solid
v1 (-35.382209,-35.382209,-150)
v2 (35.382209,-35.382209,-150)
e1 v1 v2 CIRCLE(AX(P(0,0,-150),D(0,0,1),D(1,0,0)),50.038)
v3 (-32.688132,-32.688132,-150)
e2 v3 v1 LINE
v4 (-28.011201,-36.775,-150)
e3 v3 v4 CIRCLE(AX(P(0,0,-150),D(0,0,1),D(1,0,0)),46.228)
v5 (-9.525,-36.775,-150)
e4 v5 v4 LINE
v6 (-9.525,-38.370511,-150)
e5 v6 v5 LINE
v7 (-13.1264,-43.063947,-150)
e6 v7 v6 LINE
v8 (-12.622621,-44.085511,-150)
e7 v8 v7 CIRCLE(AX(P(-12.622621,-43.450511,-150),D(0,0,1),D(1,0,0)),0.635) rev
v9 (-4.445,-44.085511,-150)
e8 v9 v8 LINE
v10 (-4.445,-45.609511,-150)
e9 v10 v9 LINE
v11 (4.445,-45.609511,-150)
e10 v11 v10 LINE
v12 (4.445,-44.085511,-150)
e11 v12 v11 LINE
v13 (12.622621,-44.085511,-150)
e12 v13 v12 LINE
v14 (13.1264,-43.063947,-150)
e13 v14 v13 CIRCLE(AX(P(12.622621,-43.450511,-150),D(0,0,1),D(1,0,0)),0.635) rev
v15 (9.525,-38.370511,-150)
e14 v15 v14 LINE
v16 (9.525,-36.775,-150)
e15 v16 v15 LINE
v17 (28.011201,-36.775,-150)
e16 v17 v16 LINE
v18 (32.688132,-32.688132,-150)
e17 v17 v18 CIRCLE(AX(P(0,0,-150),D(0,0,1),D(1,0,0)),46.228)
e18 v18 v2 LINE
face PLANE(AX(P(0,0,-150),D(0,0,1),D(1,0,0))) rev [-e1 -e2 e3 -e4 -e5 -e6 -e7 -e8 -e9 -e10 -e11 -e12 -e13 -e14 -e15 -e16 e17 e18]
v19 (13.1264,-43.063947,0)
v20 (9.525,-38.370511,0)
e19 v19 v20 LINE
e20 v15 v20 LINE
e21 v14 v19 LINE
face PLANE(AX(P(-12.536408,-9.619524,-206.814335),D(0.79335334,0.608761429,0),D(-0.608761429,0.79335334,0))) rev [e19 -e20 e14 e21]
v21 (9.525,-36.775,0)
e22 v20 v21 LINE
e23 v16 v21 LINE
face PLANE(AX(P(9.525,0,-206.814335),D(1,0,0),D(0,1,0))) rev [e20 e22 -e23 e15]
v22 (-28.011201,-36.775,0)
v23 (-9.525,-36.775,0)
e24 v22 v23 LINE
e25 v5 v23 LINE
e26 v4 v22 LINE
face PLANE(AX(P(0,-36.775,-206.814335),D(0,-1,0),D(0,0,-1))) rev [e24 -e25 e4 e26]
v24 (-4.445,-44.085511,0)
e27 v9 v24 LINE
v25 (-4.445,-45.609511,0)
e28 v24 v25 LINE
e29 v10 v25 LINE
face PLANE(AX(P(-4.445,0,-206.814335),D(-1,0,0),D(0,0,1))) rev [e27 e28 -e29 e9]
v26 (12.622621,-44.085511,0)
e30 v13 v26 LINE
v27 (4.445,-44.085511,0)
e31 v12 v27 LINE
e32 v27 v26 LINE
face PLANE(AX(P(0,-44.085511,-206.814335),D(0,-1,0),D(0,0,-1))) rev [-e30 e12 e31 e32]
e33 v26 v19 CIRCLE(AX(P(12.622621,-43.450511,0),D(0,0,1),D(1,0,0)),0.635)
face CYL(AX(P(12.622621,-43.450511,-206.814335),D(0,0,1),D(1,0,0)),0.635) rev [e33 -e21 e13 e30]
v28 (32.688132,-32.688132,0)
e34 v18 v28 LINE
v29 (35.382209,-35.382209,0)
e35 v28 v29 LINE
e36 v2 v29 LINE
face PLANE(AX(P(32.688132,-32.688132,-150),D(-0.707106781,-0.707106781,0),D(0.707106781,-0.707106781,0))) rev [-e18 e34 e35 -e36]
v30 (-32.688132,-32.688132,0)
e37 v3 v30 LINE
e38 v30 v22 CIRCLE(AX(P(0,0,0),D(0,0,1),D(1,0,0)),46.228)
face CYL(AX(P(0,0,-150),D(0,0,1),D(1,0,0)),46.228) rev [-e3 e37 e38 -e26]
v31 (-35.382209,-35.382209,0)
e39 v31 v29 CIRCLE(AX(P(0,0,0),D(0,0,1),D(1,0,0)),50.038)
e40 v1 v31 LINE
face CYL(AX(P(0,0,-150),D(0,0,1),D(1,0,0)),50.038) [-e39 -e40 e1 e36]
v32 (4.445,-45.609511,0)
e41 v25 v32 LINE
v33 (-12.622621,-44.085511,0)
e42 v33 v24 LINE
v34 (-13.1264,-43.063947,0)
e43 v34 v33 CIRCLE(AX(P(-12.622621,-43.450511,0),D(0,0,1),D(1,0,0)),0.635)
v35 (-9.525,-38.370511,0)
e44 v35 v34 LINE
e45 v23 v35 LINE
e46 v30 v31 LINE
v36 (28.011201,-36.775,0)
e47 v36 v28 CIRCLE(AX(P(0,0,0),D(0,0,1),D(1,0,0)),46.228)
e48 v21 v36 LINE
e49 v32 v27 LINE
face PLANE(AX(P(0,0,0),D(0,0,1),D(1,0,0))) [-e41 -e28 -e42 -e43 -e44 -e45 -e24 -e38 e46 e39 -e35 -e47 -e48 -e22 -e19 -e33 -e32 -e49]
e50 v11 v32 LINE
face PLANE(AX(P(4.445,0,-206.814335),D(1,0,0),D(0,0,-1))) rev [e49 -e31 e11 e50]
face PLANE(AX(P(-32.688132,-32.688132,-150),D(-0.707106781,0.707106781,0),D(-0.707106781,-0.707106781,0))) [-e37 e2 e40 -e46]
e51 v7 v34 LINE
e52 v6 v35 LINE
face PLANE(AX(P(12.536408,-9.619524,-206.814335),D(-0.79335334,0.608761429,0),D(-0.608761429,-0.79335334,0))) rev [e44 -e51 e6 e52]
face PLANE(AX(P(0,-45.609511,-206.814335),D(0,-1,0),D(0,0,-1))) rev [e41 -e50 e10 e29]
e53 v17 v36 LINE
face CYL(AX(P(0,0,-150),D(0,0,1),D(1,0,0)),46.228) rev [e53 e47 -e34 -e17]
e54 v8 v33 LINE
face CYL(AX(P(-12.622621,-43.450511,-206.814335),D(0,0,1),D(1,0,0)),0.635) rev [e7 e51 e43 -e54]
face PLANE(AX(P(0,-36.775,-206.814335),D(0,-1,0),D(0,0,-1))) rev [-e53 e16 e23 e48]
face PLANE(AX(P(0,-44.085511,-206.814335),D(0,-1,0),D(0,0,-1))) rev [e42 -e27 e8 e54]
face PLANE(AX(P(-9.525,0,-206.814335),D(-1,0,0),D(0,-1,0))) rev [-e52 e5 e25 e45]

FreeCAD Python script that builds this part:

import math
import FreeCAD as App
import Part
import Sketcher

V = App.Vector
Q = App.Units.Quantity

doc = App.newDocument("Part")
params = doc.addObject("Spreadsheet::Sheet", "Params")
for row, (alias, value) in enumerate([
    ("sketch1_radius", "1.82 in"),
    ("sketch1_radius2", "1.97 in"),
    ("pad1_length", "150 mm"),
    ("sketch2_radius", "1.82 in"),
    ("sketch2_radius2", "0.025 in"),
    ("sketch2_width", "0.35 in"),
    ("sketch2_height", "0.06 in"),
    ("pad2_length", "150 mm"),
], start=1):
    params.set(f"A{row}", alias)
    params.set(f"B{row}", "=" + value)
    params.setAlias(f"B{row}", alias)

body = doc.addObject("PartDesign::Body", "Body")

# Sketch on XY plane
sketch1 = doc.addObject("Sketcher::SketchObject", "Sketch")
body.addObject(sketch1)
sketch1.AttachmentSupport = (doc.XY_Plane, [""])
sketch1.MapMode = "FlatFace"
sketch1.addGeometry([
    Part.LineSegment(V(35.382209, -35.382209, 0), V(32.688132, -32.688132, 0)),
    Part.ArcOfCircle(Part.Circle(V(0, 0, 0), V(0, 0, 1), 46.228), math.radians(-135), math.radians(-45)),
    Part.LineSegment(V(-32.688132, -32.688132, 0), V(-35.382209, -35.382209, 0)),
    Part.ArcOfCircle(Part.Circle(V(0, 0, 0), V(0, 0, 1), 50.038), math.radians(-135), math.radians(-45)),
], False)
sketch1.addConstraint([
    Sketcher.Constraint("Coincident", 0, 2, 1, 2),
    Sketcher.Constraint("Coincident", 1, 1, 2, 1),
    Sketcher.Constraint("Coincident", 2, 2, 3, 1),
    Sketcher.Constraint("Coincident", 3, 2, 0, 1),
    Sketcher.Constraint("Coincident", 1, 3, -1, 1),
    Sketcher.Constraint("Coincident", 3, 3, -1, 1),
    Sketcher.Constraint("Perpendicular", 0, 2),
    Sketcher.Constraint("Horizontal", 0, 2, 1, 1),
    Sketcher.Constraint("Horizontal", 2, 2, 3, 2),
    Sketcher.Constraint("Radius", 1, Q("1.82 in")),
    Sketcher.Constraint("Radius", 3, Q("1.97 in")),
    Sketcher.Constraint("DistanceX", 2, 2, -1, 1, 35.382209),
])
sketch1.setExpression("Constraints[9]", "Params.sketch1_radius")
sketch1.setExpression("Constraints[10]", "Params.sketch1_radius2")
pad1 = doc.addObject("PartDesign::Pad", "Pad")
body.addObject(pad1)
pad1.Profile = sketch1
pad1.setExpression("Length", "Params.pad1_length")
pad1.Reversed = True

# Sketch on XY plane
sketch2 = doc.addObject("Sketcher::SketchObject", "Sketch001")
body.addObject(sketch2)
sketch2.AttachmentSupport = (doc.XY_Plane, [""])
sketch2.MapMode = "FlatFace"
sketch2.addGeometry([
    Part.LineSegment(V(-9.525, -36.775, 0), V(-28.011201, -36.775, 0)),  # 0
    Part.ArcOfCircle(Part.Circle(V(0, 0, 0), V(0, 0, 1), 46.228), math.radians(-127.296212), math.radians(-90)),  # 1
    Part.ArcOfCircle(Part.Circle(V(0, 0, 0), V(0, 0, 1), 46.228), math.radians(-90), math.radians(-52.703788)),  # 2
    Part.LineSegment(V(28.011201, -36.775, 0), V(9.525, -36.775, 0)),  # 3
    Part.LineSegment(V(9.525, -36.775, 0), V(9.525, -38.370511, 0)),  # 4
    Part.LineSegment(V(9.525, -38.370511, 0), V(13.1264, -43.063947, 0)),  # 5
    Part.ArcOfCircle(Part.Circle(V(12.622621, -43.450511, 0), V(0, 0, 1), 0.635), math.radians(-90), math.radians(37.5)),  # 6
    Part.LineSegment(V(12.622621, -44.085511, 0), V(4.445, -44.085511, 0)),  # 7
    Part.LineSegment(V(4.445, -44.085511, 0), V(4.445, -45.609511, 0)),  # 8
    Part.LineSegment(V(4.445, -45.609511, 0), V(-4.445, -45.609511, 0)),  # 9
    Part.LineSegment(V(-4.445, -45.609511, 0), V(-4.445, -44.085511, 0)),  # 10
    Part.LineSegment(V(-4.445, -44.085511, 0), V(-12.622621, -44.085511, 0)),  # 11
    Part.ArcOfCircle(Part.Circle(V(-12.622621, -43.450511, 0), V(0, 0, 1), 0.635), math.radians(142.5), math.radians(270)),  # 12
    Part.LineSegment(V(-13.1264, -43.063947, 0), V(-9.525, -38.370511, 0)),  # 13
    Part.LineSegment(V(-9.525, -38.370511, 0), V(-9.525, -36.775, 0)),  # 14
], False)
sketch2.addConstraint([
    Sketcher.Constraint("Coincident", 0, 2, 1, 1),
    Sketcher.Constraint("Tangent", 1, 2, 2, 1),
    Sketcher.Constraint("Coincident", 2, 2, 3, 1),
    Sketcher.Constraint("Coincident", 3, 2, 4, 1),
    Sketcher.Constraint("Coincident", 4, 2, 5, 1),
    Sketcher.Constraint("Tangent", 5, 2, 6, 2),
    Sketcher.Constraint("Tangent", 6, 1, 7, 1),
    Sketcher.Constraint("Coincident", 7, 2, 8, 1),
    Sketcher.Constraint("Coincident", 8, 2, 9, 1),
    Sketcher.Constraint("Coincident", 9, 2, 10, 1),
    Sketcher.Constraint("Coincident", 10, 2, 11, 1),
    Sketcher.Constraint("Tangent", 11, 2, 12, 2),
    Sketcher.Constraint("Tangent", 12, 1, 13, 1),
    Sketcher.Constraint("Coincident", 13, 2, 14, 1),
    Sketcher.Constraint("Coincident", 14, 2, 0, 1),
    Sketcher.Constraint("Horizontal", 0),
    Sketcher.Constraint("Horizontal", 3),
    Sketcher.Constraint("Vertical", 4),
    Sketcher.Constraint("Horizontal", 7),
    Sketcher.Constraint("Vertical", 8),
    Sketcher.Constraint("Horizontal", 9),
    Sketcher.Constraint("Vertical", 10),
    Sketcher.Constraint("Horizontal", 11),
    Sketcher.Constraint("Vertical", 14),
    Sketcher.Constraint("Coincident", 1, 3, -1, 1),
    Sketcher.Constraint("Equal", 1, 2),
    Sketcher.Constraint("Equal", 6, 12),
    Sketcher.Constraint("Symmetric", 6, 3, 12, 3, -2),
    Sketcher.Constraint("Symmetric", 4, 2, 13, 2, -2),
    Sketcher.Constraint("PointOnObject", 1, 2, -2),
    Sketcher.Constraint("Horizontal", 0, 2, 2, 2),
    Sketcher.Constraint("Equal", 7, 11),
    Sketcher.Constraint("Radius", 1, Q("1.82 in")),
    Sketcher.Constraint("Radius", 6, Q("0.025 in")),
    Sketcher.Constraint("DistanceX", 9, 2, 9, 1, Q("0.35 in")),
    Sketcher.Constraint("DistanceY", 8, 2, 8, 1, Q("0.06 in")),
    Sketcher.Constraint("Angle", 5, Q("-52.5 deg")),
    Sketcher.Constraint("DistanceY", 6, 3, 4, 2, Q("0.2 in")),
    Sketcher.Constraint("DistanceX", 7, 2, 4, 2, Q("0.2 in")),
    Sketcher.Constraint("DistanceX", 0, 2, 0, 1, 18.486201),
    Sketcher.Constraint("DistanceY", 4, 2, 4, 1, 1.595511),
])
sketch2.setExpression("Constraints[32]", "Params.sketch2_radius")
sketch2.setExpression("Constraints[33]", "Params.sketch2_radius2")
sketch2.setExpression("Constraints[34]", "Params.sketch2_width")
sketch2.setExpression("Constraints[35]", "Params.sketch2_height")
pad2 = doc.addObject("PartDesign::Pad", "Pad001")
body.addObject(pad2)
pad2.Profile = sketch2
pad2.setExpression("Length", "Params.pad2_length")
pad2.Reversed = True

doc.recompute()
